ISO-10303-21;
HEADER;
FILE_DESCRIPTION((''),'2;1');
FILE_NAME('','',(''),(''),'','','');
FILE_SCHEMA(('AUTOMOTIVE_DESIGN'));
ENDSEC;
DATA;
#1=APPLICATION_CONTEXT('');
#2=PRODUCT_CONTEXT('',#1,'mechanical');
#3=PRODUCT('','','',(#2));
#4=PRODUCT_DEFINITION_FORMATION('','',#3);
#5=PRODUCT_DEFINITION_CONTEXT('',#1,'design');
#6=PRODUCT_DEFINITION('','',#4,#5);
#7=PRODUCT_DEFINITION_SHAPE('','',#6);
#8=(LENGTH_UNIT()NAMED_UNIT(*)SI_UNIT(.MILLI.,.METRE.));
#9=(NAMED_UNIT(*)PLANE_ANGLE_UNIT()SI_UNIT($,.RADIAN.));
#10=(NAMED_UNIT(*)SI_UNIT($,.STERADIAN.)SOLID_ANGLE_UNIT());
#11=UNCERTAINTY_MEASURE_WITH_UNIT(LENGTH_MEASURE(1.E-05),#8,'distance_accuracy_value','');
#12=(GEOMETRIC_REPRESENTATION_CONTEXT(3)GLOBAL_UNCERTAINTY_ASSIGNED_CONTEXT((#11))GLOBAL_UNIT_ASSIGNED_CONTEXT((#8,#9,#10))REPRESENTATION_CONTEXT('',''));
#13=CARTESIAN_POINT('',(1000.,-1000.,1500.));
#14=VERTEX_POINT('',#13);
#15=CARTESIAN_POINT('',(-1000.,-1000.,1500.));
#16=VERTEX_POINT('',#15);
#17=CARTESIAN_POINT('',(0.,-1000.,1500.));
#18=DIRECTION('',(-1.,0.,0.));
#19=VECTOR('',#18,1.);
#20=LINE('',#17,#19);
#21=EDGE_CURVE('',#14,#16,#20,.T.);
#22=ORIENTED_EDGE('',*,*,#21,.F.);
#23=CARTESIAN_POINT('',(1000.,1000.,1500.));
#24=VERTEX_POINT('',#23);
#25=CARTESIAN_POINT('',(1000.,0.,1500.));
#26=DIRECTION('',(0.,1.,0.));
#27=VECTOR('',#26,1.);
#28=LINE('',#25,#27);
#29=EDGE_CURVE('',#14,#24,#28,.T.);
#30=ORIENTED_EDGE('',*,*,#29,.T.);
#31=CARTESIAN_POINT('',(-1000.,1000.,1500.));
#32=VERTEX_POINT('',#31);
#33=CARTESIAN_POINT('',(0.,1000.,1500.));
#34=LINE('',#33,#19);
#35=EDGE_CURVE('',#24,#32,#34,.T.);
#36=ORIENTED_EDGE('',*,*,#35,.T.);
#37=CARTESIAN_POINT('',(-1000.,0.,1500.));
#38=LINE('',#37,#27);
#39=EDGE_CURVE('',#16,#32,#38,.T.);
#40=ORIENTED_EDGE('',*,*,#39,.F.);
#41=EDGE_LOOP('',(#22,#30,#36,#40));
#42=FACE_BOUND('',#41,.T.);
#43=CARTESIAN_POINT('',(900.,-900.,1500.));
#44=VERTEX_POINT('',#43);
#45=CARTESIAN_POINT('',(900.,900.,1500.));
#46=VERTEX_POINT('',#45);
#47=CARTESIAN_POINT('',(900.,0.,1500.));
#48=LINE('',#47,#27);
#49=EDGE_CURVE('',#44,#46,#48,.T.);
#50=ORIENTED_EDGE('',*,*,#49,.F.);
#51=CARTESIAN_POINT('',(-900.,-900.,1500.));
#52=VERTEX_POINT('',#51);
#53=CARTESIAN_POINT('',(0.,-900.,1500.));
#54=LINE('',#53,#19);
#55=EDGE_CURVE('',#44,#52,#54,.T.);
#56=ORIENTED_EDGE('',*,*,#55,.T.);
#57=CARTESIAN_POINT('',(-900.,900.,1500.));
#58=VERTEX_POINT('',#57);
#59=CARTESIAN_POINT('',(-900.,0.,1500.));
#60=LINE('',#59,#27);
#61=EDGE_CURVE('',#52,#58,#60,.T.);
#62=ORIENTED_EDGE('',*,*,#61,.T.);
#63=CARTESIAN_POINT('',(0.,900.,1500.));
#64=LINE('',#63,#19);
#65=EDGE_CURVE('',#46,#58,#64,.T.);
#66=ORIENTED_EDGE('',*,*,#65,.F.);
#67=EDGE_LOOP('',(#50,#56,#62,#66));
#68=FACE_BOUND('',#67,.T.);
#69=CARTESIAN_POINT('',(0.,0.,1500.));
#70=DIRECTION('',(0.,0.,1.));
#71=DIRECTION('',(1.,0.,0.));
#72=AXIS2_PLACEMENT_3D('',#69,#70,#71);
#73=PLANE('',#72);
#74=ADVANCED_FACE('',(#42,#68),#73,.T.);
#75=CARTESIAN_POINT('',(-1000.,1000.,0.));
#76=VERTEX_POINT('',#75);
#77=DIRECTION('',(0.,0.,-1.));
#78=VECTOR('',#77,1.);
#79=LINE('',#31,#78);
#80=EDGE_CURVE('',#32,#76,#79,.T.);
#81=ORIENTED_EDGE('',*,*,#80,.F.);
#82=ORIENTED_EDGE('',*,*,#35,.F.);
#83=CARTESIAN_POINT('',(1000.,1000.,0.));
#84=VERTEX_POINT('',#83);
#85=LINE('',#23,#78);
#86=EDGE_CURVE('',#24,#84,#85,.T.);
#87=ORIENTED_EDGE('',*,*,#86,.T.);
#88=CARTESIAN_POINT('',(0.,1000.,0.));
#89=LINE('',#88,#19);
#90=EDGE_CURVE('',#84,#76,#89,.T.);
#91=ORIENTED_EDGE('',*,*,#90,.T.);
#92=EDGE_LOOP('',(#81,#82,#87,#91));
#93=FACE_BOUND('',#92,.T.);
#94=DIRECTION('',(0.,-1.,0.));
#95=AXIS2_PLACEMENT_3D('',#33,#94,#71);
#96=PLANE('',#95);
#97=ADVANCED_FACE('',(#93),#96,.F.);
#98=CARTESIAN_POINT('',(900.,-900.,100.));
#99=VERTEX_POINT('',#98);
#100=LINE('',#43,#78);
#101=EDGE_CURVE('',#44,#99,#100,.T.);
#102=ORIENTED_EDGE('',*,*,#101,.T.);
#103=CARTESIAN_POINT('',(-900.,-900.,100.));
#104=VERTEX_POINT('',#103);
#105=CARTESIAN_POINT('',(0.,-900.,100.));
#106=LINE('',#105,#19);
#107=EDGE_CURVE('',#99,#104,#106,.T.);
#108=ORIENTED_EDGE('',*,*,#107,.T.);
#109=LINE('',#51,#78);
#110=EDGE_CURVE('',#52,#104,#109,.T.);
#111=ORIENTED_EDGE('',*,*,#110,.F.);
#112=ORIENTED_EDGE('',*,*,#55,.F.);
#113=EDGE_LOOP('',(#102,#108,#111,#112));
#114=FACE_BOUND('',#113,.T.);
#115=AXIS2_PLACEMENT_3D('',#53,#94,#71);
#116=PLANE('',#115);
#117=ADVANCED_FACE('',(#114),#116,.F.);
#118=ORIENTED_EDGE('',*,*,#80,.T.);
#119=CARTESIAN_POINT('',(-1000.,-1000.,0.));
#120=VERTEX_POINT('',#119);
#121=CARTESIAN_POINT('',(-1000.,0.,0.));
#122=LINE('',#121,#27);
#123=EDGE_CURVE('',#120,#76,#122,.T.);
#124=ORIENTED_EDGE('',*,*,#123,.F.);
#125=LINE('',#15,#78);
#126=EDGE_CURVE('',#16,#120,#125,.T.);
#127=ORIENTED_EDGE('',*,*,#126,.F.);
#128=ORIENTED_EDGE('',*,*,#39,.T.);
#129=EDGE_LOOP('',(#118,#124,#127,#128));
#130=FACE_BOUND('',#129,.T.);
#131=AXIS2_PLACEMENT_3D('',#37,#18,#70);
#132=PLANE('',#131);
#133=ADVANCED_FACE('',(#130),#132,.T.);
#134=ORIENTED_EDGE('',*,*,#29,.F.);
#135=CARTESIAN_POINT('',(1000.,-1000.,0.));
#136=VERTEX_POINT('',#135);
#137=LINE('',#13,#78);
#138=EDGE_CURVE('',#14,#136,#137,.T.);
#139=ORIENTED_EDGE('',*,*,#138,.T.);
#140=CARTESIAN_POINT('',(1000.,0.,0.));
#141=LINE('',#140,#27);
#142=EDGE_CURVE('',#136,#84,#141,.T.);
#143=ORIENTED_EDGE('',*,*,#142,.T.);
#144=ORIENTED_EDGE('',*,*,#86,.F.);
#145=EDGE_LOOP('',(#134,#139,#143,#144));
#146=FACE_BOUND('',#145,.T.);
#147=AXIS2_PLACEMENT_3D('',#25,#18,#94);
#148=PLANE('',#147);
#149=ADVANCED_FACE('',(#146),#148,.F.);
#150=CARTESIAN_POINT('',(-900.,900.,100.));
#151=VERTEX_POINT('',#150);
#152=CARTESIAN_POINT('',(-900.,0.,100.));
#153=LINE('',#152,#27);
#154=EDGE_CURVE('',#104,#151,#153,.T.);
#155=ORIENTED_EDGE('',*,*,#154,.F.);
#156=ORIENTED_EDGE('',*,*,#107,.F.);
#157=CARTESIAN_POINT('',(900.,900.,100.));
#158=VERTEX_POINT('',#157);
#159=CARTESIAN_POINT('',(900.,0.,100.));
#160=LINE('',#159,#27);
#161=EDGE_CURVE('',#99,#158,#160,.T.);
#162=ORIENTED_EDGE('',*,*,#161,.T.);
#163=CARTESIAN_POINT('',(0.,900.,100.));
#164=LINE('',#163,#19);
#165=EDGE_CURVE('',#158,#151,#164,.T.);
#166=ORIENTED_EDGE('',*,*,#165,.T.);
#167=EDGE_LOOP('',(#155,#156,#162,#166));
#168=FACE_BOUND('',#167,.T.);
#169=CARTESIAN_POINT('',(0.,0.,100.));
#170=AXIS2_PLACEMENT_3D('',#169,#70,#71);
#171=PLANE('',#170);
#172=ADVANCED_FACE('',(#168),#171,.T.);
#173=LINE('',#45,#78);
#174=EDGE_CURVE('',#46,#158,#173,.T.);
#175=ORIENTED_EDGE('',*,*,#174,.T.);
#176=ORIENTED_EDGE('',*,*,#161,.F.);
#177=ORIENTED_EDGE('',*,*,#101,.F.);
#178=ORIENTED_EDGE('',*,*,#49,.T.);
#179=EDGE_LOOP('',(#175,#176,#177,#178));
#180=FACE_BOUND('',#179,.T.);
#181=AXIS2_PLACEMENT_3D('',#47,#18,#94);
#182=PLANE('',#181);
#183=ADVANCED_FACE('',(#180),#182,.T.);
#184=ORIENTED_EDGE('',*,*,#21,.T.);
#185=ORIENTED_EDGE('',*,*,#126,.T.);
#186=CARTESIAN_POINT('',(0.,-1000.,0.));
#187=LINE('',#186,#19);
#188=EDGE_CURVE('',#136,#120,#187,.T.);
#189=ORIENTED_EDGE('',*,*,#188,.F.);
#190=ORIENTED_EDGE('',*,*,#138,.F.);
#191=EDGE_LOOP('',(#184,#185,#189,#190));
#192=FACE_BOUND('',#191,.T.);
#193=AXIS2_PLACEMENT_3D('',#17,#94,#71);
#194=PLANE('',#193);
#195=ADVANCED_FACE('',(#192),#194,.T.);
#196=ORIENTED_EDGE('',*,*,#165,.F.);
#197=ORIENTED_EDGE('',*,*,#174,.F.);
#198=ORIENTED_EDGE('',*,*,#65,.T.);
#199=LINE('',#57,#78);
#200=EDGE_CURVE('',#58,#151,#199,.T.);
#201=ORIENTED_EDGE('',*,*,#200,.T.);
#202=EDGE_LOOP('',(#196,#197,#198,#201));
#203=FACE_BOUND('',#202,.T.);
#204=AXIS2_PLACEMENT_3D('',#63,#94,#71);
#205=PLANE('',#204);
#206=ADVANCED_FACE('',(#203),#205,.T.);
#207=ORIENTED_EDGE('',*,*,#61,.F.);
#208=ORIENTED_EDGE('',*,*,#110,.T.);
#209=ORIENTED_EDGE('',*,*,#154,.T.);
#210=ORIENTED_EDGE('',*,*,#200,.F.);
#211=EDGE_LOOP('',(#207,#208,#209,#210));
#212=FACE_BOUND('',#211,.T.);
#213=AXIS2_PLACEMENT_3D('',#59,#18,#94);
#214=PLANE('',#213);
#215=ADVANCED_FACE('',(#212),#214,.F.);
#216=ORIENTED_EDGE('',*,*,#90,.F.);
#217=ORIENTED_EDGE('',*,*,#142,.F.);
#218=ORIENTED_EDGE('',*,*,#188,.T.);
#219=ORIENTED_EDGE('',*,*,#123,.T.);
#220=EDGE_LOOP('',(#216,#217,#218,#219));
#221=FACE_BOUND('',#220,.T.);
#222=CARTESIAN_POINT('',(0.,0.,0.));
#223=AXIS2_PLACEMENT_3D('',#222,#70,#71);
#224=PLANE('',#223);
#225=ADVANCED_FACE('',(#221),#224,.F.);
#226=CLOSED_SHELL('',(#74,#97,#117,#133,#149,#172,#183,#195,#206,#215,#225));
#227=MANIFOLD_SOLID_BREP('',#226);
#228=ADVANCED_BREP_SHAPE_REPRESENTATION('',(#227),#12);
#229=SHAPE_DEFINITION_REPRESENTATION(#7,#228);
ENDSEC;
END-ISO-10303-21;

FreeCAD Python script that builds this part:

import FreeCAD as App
import Part
import Sketcher
from FreeCAD import Vector


def add_polygon(sketch, points):
    """Adds a closed chain of lines whose ends are joined by coincident constraints."""
    first, n = sketch.GeometryCount, len(points)
    for a, b in zip(points, points[1:] + points[:1]):
        sketch.addGeometry(Part.LineSegment(App.Vector(*a, 0), App.Vector(*b, 0)), False)
    for i in range(n):
        sketch.addConstraint(Sketcher.Constraint("Coincident", first + i, 2, first + (i + 1) % n, 1))

doc = App.newDocument("Part")
body = doc.addObject("PartDesign::Body", "Body")

sketch1 = doc.addObject("Sketcher::SketchObject", "Sketch")
body.addObject(sketch1)
sketch1.AttachmentSupport = (doc.XY_Plane, [""])
sketch1.MapMode = "FlatFace"
add_polygon(sketch1, [(-900, 900), (-900, -900), (900, -900), (900, 900)])
sketch1.addConstraint(Sketcher.Constraint("Vertical", 0))
sketch1.addConstraint(Sketcher.Constraint("Horizontal", 1))
sketch1.addConstraint(Sketcher.Constraint("Vertical", 2))
sketch1.addConstraint(Sketcher.Constraint("Horizontal", 3))
sketch1.addConstraint(Sketcher.Constraint("Symmetric", 0, 2, 2, 2, -1, 1))
sketch1.addConstraint(Sketcher.Constraint("Equal", 3, 0))
sketch1.addConstraint(Sketcher.Constraint("DistanceX", 1, 1, 1, 2, 1800.0))
pad1 = doc.addObject("PartDesign::Pad", "Pad")
body.addObject(pad1)
pad1.Profile = sketch1
pad1.Length = 100

sketch2 = doc.addObject("Sketcher::SketchObject", "Sketch001")
body.addObject(sketch2)
sketch2.AttachmentSupport = (doc.XY_Plane, [""])
sketch2.MapMode = "FlatFace"
add_polygon(sketch2, [(-1000, 1000), (-1000, -1000), (1000, -1000), (1000, 1000)])
add_polygon(sketch2, [(900, -900), (-900, -900), (-900, 900), (900, 900)])
sketch2.addConstraint(Sketcher.Constraint("Vertical", 0))
sketch2.addConstraint(Sketcher.Constraint("Horizontal", 1))
sketch2.addConstraint(Sketcher.Constraint("Vertical", 2))
sketch2.addConstraint(Sketcher.Constraint("Horizontal", 3))
sketch2.addConstraint(Sketcher.Constraint("Horizontal", 4))
sketch2.addConstraint(Sketcher.Constraint("Vertical", 5))
sketch2.addConstraint(Sketcher.Constraint("Horizontal", 6))
sketch2.addConstraint(Sketcher.Constraint("Vertical", 7))
sketch2.addConstraint(Sketcher.Constraint("Symmetric", 0, 2, 2, 2, -1, 1))
sketch2.addConstraint(Sketcher.Constraint("Symmetric", 4, 2, 6, 2, -1, 1))
sketch2.addConstraint(Sketcher.Constraint("Equal", 3, 0))
sketch2.addConstraint(Sketcher.Constraint("Equal", 6, 5))
sketch2.addConstraint(Sketcher.Constraint("DistanceX", 1, 1, 1, 2, 2000.0))
sketch2.addConstraint(Sketcher.Constraint("DistanceX", 4, 2, 4, 1, 1800.0))
pad2 = doc.addObject("PartDesign::Pad", "Pad001")
body.addObject(pad2)
pad2.Profile = sketch2
pad2.Length = 1500

doc.recompute()
